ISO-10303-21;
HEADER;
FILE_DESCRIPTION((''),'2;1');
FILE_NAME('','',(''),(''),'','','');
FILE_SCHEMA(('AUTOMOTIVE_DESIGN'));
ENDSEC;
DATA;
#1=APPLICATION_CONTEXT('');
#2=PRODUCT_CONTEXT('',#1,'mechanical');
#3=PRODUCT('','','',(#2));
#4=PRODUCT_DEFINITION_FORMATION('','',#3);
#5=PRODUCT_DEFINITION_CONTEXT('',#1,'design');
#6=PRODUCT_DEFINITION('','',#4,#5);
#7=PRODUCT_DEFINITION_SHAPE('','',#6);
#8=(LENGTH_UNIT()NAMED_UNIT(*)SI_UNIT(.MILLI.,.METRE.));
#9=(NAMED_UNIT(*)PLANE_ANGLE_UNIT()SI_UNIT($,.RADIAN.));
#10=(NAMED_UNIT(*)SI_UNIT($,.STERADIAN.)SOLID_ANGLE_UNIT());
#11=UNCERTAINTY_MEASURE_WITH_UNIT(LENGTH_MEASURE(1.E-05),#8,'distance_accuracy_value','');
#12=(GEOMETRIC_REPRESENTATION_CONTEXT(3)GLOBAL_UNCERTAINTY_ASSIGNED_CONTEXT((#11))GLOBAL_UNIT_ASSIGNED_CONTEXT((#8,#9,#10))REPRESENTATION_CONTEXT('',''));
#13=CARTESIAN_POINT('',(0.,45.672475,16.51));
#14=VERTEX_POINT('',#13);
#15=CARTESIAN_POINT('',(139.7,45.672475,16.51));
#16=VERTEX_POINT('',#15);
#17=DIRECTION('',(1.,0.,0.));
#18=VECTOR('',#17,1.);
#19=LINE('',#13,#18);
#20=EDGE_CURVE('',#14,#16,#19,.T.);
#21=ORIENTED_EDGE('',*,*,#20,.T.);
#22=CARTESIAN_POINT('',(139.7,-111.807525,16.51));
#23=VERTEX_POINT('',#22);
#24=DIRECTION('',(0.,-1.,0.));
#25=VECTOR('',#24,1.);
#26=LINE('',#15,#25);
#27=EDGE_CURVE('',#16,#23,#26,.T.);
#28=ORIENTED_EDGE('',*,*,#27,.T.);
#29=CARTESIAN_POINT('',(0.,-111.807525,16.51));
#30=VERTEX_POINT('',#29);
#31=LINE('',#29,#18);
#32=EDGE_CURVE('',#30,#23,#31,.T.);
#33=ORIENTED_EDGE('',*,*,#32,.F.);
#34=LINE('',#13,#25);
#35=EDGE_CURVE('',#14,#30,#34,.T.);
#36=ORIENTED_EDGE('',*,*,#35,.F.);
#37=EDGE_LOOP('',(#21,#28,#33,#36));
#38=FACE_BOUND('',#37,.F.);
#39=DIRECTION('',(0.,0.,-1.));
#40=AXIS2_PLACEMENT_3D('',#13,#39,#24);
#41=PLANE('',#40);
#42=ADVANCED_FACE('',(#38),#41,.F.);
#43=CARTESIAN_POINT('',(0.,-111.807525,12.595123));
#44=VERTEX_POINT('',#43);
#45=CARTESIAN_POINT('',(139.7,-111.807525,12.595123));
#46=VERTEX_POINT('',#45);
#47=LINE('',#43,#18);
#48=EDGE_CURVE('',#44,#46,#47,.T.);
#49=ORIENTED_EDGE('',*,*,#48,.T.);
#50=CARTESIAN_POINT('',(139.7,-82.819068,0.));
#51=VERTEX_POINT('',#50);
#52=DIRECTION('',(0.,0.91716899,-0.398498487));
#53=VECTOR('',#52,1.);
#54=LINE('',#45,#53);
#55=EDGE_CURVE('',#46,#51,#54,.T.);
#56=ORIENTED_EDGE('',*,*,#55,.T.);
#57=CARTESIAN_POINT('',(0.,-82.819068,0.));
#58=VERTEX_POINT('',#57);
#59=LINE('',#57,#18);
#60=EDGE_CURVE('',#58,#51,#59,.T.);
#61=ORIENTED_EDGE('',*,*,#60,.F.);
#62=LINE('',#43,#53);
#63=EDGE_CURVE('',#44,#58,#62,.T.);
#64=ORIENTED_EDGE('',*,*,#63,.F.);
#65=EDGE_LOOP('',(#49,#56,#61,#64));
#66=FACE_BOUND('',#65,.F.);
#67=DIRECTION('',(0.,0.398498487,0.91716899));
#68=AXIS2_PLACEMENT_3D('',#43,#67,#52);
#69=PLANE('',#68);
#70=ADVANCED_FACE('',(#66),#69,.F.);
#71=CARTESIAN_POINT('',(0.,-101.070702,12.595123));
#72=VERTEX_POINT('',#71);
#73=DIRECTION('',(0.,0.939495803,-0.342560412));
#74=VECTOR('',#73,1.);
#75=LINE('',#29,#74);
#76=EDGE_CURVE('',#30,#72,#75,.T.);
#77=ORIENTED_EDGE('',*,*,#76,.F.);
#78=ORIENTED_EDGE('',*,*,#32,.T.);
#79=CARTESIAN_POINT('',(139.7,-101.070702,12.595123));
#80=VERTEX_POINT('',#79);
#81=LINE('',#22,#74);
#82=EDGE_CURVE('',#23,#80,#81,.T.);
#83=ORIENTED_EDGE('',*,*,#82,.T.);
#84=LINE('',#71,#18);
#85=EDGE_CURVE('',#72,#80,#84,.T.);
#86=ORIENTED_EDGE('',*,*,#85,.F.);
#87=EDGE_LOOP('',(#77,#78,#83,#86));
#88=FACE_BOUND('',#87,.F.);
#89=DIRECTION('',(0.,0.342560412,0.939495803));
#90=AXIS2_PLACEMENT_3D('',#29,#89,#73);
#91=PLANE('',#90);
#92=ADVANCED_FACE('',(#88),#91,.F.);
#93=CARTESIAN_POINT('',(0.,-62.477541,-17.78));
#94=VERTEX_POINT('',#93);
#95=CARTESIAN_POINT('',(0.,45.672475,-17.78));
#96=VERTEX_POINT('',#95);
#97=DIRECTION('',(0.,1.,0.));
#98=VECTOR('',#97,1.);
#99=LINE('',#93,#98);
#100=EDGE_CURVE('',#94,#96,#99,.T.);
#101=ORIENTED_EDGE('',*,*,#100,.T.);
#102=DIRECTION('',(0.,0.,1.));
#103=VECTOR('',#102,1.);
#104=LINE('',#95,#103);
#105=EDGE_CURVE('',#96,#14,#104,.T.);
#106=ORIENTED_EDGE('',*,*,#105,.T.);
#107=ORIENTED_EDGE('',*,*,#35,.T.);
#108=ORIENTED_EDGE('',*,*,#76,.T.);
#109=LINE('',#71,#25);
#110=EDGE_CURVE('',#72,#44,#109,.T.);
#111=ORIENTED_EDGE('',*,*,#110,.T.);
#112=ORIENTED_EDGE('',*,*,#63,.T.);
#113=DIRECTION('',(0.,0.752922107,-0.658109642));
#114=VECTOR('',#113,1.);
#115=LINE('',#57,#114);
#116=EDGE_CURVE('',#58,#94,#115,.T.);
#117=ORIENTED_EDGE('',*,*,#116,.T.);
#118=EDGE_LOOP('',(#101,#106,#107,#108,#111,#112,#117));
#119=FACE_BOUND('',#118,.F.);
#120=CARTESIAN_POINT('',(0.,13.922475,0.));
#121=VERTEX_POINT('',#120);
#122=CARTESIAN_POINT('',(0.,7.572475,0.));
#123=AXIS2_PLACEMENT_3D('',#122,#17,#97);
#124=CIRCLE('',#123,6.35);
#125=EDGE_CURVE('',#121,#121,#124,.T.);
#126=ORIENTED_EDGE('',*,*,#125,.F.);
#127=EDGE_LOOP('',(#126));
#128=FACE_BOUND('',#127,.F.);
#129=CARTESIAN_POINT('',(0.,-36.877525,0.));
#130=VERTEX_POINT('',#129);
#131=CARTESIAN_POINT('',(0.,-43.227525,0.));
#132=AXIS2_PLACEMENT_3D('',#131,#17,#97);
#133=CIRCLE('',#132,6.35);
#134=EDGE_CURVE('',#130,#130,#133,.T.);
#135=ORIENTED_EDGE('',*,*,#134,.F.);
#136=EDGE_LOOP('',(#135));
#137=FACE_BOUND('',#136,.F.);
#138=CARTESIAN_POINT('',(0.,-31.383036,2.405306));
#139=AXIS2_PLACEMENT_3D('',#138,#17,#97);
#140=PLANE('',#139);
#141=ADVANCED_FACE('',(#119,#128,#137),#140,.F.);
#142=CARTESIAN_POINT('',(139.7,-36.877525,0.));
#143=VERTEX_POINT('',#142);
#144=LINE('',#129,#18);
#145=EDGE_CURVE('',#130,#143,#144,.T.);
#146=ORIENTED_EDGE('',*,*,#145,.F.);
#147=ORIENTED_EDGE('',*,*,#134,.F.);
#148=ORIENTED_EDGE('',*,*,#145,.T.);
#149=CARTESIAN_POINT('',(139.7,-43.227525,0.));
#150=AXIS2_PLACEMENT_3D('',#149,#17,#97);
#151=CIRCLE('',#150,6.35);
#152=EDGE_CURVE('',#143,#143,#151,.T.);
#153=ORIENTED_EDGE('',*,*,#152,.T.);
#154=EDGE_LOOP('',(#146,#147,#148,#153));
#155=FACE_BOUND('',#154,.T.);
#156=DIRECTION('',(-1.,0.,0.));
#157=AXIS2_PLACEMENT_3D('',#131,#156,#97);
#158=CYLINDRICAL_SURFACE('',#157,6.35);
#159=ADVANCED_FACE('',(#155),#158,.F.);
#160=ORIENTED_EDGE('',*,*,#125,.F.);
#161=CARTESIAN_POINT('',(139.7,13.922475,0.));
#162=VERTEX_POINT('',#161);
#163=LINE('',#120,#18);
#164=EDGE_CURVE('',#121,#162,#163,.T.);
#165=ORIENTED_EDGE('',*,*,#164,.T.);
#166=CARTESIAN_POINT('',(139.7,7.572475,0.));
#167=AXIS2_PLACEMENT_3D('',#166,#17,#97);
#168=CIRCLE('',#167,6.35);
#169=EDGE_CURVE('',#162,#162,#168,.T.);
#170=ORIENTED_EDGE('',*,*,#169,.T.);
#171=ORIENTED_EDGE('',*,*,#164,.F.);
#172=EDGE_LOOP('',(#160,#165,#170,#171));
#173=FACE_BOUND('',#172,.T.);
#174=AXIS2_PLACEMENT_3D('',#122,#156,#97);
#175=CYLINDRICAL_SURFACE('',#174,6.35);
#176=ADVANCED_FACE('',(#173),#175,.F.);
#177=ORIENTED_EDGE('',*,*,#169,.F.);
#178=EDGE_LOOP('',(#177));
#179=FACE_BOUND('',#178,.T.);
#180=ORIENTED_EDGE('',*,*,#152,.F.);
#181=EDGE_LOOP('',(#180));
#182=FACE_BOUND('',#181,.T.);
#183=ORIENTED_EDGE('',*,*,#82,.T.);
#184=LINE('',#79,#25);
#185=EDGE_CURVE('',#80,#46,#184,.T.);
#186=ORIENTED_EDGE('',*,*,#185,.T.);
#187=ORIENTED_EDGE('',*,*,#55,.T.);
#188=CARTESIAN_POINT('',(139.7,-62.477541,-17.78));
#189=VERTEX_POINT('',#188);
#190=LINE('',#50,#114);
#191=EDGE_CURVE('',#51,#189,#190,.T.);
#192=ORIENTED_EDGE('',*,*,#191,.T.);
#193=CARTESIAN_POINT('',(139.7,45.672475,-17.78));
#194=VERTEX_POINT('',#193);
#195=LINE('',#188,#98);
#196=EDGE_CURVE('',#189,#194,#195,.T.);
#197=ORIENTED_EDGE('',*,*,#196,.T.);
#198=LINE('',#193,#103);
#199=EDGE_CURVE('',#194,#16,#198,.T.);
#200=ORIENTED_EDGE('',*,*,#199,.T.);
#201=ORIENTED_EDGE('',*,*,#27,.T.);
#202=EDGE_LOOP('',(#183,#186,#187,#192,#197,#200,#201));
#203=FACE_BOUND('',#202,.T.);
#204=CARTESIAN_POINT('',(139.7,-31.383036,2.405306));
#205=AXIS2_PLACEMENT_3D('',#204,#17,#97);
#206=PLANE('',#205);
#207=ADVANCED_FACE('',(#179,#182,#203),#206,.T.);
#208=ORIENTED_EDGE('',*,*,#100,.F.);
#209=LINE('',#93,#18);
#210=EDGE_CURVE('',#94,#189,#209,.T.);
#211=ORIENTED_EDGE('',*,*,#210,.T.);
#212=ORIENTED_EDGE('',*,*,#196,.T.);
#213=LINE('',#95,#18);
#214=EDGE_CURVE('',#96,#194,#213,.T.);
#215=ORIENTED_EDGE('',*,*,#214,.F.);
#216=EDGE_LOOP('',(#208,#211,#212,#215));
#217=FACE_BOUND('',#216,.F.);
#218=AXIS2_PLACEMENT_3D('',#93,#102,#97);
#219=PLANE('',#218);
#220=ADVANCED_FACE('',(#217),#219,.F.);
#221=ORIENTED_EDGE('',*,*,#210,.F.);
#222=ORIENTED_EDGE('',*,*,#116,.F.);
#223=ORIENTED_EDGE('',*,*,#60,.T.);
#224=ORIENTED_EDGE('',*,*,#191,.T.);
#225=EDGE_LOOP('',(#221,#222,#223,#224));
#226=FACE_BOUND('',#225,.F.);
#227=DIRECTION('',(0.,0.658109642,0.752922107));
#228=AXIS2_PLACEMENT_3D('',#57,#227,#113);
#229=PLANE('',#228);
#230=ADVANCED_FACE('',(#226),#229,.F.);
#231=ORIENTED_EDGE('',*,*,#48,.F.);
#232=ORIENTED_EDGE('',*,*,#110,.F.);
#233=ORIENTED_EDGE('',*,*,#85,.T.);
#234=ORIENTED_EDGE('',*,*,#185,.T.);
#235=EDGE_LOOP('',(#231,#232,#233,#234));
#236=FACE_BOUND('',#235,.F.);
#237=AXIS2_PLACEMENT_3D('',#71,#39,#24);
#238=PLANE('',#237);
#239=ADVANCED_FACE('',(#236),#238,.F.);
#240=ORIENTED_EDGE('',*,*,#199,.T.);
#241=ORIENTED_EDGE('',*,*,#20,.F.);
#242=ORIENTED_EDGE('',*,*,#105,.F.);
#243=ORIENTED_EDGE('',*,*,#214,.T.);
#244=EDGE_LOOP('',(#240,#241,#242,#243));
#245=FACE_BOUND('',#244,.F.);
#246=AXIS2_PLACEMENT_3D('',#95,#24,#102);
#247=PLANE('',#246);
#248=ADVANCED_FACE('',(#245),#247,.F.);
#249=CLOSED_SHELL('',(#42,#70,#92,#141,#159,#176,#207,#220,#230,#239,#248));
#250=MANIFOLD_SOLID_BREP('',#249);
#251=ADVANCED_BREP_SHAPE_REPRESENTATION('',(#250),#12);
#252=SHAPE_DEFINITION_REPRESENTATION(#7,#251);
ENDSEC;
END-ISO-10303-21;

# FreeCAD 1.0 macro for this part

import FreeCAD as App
import Part
import Sketcher
Q = App.Units.Quantity

doc = App.newDocument("Part")
body = doc.addObject("PartDesign::Body", "Body")

# Sketch on YZ plane
sketch1 = doc.addObject("Sketcher::SketchObject", "Sketch")
body.addObject(sketch1)
sketch1.AttachmentSupport = (doc.YZ_Plane, [""])
sketch1.MapMode = "FlatFace"
sketch1.addGeometry(Part.LineSegment(App.Vector(45.672475, -17.78, 0), App.Vector(45.672475, 16.51, 0)), False)
sketch1.addGeometry(Part.LineSegment(App.Vector(45.672475, 16.51, 0), App.Vector(-111.807525, 16.51, 0)), False)
sketch1.addGeometry(Part.LineSegment(App.Vector(-111.807525, 16.51, 0), App.Vector(-101.070702, 12.595123, 0)), False)
sketch1.addGeometry(Part.LineSegment(App.Vector(-101.070702, 12.595123, 0), App.Vector(-111.807525, 12.595123, 0)), False)
sketch1.addGeometry(Part.LineSegment(App.Vector(-111.807525, 12.595123, 0), App.Vector(-82.819068, 0, 0)), False)
sketch1.addGeometry(Part.LineSegment(App.Vector(-82.819068, 0, 0), App.Vector(-62.477541, -17.78, 0)), False)
sketch1.addGeometry(Part.LineSegment(App.Vector(-62.477541, -17.78, 0), App.Vector(45.672475, -17.78, 0)), False)
sketch1.addGeometry(Part.Circle(App.Vector(-43.227525, 0, 0), App.Vector(0, 0, 1), 6.35), False)
sketch1.addGeometry(Part.Circle(App.Vector(7.572475, 0, 0), App.Vector(0, 0, 1), 6.35), False)
sketch1.addConstraint(Sketcher.Constraint("Coincident", 0, 2, 1, 1))
sketch1.addConstraint(Sketcher.Constraint("Coincident", 1, 2, 2, 1))
sketch1.addConstraint(Sketcher.Constraint("Coincident", 2, 2, 3, 1))
sketch1.addConstraint(Sketcher.Constraint("Coincident", 3, 2, 4, 1))
sketch1.addConstraint(Sketcher.Constraint("Coincident", 4, 2, 5, 1))
sketch1.addConstraint(Sketcher.Constraint("Coincident", 5, 2, 6, 1))
sketch1.addConstraint(Sketcher.Constraint("Coincident", 6, 2, 0, 1))
sketch1.addConstraint(Sketcher.Constraint("Vertical", 0))
sketch1.addConstraint(Sketcher.Constraint("Horizontal", 1))
sketch1.addConstraint(Sketcher.Constraint("Horizontal", 3))
sketch1.addConstraint(Sketcher.Constraint("Horizontal", 6))
sketch1.addConstraint(Sketcher.Constraint("Equal", 7, 8))
sketch1.addConstraint(Sketcher.Constraint("PointOnObject", 7, 3, -1))
sketch1.addConstraint(Sketcher.Constraint("PointOnObject", 8, 3, -1))
sketch1.addConstraint(Sketcher.Constraint("PointOnObject", 4, 2, -1))
sketch1.addConstraint(Sketcher.Constraint("Vertical", 1, 2, 3, 2))
sketch1.addConstraint(Sketcher.Constraint("Diameter", 7, Q("0.5 in")))
sketch1.addConstraint(Sketcher.Constraint("DistanceX", 1, 2, 1, 1, Q("6.2 in")))
sketch1.addConstraint(Sketcher.Constraint("DistanceX", 7, 3, 8, 3, Q("2 in")))
sketch1.addConstraint(Sketcher.Constraint("DistanceY", 0, 1, 0, 2, Q("1.35 in")))
sketch1.addConstraint(Sketcher.Constraint("DistanceY", 5, 2, -1, 1, Q("0.7 in")))
sketch1.addConstraint(Sketcher.Constraint("DistanceX", 8, 3, 0, 2, Q("1.5 in")))
sketch1.addConstraint(Sketcher.Constraint("DistanceX", 2, 2, -1, 1, Q("101.070702 mm")))
sketch1.addConstraint(Sketcher.Constraint("Distance", 4, Q("31.606451 mm")))
sketch1.addConstraint(Sketcher.Constraint("DistanceX", 3, 2, 3, 1, Q("10.736823 mm")))
sketch1.addConstraint(Sketcher.Constraint("DistanceX", 6, 1, 6, 2, Q("108.150016 mm")))
sketch1.addConstraint(Sketcher.Constraint("DistanceX", 4, 2, -1, 1, Q("82.819068 mm")))
pad1 = doc.addObject("PartDesign::Pad", "Pad")
body.addObject(pad1)
pad1.Profile = sketch1
pad1.Length = Q("5.5 in")

doc.recompute()
